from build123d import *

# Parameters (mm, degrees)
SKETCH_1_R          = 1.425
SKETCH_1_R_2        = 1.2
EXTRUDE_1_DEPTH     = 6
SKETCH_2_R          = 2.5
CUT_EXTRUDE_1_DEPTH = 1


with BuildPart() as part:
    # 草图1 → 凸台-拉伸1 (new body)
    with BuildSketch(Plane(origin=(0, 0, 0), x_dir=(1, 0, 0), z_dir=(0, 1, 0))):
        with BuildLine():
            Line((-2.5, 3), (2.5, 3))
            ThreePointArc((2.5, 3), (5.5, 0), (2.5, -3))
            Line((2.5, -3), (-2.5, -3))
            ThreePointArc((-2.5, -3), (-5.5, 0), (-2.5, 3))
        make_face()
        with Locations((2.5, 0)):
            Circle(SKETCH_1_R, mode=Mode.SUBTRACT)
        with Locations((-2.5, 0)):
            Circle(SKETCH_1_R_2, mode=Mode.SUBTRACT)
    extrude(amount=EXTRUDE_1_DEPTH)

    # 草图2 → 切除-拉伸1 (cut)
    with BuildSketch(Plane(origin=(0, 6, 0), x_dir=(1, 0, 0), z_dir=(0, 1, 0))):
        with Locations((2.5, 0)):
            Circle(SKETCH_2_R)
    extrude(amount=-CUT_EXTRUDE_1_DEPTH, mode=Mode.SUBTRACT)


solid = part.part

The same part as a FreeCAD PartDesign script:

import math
import FreeCAD as App
import Part
import Sketcher
from FreeCAD import Vector
Q = App.Units.Quantity

doc = App.newDocument("Part")
body = doc.addObject("PartDesign::Body", "Body")

# Sketch on XZ plane
sketch1 = body.newObject("Sketcher::SketchObject", "Sketch")
sketch1.AttachmentSupport = (doc.getObject("XZ_Plane"), [""])
sketch1.MapMode = "FlatFace"
sketch1.addGeometry(Part.LineSegment(Vector(2.5, -3, 0), Vector(-2.5, -3, 0)), False)
sketch1.addGeometry(Part.ArcOfCircle(Part.Circle(Vector(-2.5, 0, 0), Vector(0, 0, 1), 3), math.radians(90), math.radians(270)), False)
sketch1.addGeometry(Part.LineSegment(Vector(-2.5, 3, 0), Vector(2.5, 3, 0)), False)
sketch1.addGeometry(Part.ArcOfCircle(Part.Circle(Vector(2.5, 0, 0), Vector(0, 0, 1), 3), math.radians(-90), math.radians(90)), False)
sketch1.addGeometry(Part.Circle(Vector(2.5, 0, 0), Vector(0, 0, 1), 1.4), False)
sketch1.addGeometry(Part.Circle(Vector(-2.5, 0, 0), Vector(0, 0, 1), 1.2), False)
sketch1.addConstraint(Sketcher.Constraint("Tangent", 0, 2, 1, 2))
sketch1.addConstraint(Sketcher.Constraint("Tangent", 1, 1, 2, 1))
sketch1.addConstraint(Sketcher.Constraint("Tangent", 2, 2, 3, 2))
sketch1.addConstraint(Sketcher.Constraint("Tangent", 3, 1, 0, 1))
sketch1.addConstraint(Sketcher.Constraint("Horizontal", 0))
sketch1.addConstraint(Sketcher.Constraint("Horizontal", 2))
sketch1.addConstraint(Sketcher.Constraint("Coincident", 4, 3, 3, 3))
sketch1.addConstraint(Sketcher.Constraint("Coincident", 5, 3, 1, 3))
sketch1.addConstraint(Sketcher.Constraint("Symmetric", 1, 3, 3, 3, -1, 1))
sketch1.addConstraint(Sketcher.Constraint("Radius", 1, Q("3 mm")))
sketch1.addConstraint(Sketcher.Constraint("Diameter", 5, Q("2.4 mm")))
sketch1.addConstraint(Sketcher.Constraint("Diameter", 4, Q("2.85 mm")))
sketch1.addConstraint(Sketcher.Constraint("DistanceX", 0, 2, 0, 1, Q("5 mm")))
pad1 = body.newObject("PartDesign::Pad", "Pad")
pad1.Profile = sketch1
pad1.Length = 6
pad1.Reversed = True

# Sketch on XZ plane
sketch2 = body.newObject("Sketcher::SketchObject", "Sketch001")
sketch2.AttachmentSupport = (doc.getObject("XZ_Plane"), [""])
sketch2.MapMode = "FlatFace"
sketch2.AttachmentOffset = App.Placement(Vector(0, 0, -6), App.Rotation())
sketch2.addGeometry(Part.Circle(Vector(2.5, 0, 0), Vector(0, 0, 1), 2.5), False)
sketch2.addConstraint(Sketcher.Constraint("PointOnObject", 0, 3, -1))
sketch2.addConstraint(Sketcher.Constraint("Diameter", 0, Q("5 mm")))
sketch2.addConstraint(Sketcher.Constraint("DistanceX", -1, 1, 0, 3, Q("2.5 mm")))
pocket1 = body.newObject("PartDesign::Pocket", "Pocket")
pocket1.Profile = sketch2
pocket1.Length = 1
pocket1.Reversed = True

doc.recompute()
